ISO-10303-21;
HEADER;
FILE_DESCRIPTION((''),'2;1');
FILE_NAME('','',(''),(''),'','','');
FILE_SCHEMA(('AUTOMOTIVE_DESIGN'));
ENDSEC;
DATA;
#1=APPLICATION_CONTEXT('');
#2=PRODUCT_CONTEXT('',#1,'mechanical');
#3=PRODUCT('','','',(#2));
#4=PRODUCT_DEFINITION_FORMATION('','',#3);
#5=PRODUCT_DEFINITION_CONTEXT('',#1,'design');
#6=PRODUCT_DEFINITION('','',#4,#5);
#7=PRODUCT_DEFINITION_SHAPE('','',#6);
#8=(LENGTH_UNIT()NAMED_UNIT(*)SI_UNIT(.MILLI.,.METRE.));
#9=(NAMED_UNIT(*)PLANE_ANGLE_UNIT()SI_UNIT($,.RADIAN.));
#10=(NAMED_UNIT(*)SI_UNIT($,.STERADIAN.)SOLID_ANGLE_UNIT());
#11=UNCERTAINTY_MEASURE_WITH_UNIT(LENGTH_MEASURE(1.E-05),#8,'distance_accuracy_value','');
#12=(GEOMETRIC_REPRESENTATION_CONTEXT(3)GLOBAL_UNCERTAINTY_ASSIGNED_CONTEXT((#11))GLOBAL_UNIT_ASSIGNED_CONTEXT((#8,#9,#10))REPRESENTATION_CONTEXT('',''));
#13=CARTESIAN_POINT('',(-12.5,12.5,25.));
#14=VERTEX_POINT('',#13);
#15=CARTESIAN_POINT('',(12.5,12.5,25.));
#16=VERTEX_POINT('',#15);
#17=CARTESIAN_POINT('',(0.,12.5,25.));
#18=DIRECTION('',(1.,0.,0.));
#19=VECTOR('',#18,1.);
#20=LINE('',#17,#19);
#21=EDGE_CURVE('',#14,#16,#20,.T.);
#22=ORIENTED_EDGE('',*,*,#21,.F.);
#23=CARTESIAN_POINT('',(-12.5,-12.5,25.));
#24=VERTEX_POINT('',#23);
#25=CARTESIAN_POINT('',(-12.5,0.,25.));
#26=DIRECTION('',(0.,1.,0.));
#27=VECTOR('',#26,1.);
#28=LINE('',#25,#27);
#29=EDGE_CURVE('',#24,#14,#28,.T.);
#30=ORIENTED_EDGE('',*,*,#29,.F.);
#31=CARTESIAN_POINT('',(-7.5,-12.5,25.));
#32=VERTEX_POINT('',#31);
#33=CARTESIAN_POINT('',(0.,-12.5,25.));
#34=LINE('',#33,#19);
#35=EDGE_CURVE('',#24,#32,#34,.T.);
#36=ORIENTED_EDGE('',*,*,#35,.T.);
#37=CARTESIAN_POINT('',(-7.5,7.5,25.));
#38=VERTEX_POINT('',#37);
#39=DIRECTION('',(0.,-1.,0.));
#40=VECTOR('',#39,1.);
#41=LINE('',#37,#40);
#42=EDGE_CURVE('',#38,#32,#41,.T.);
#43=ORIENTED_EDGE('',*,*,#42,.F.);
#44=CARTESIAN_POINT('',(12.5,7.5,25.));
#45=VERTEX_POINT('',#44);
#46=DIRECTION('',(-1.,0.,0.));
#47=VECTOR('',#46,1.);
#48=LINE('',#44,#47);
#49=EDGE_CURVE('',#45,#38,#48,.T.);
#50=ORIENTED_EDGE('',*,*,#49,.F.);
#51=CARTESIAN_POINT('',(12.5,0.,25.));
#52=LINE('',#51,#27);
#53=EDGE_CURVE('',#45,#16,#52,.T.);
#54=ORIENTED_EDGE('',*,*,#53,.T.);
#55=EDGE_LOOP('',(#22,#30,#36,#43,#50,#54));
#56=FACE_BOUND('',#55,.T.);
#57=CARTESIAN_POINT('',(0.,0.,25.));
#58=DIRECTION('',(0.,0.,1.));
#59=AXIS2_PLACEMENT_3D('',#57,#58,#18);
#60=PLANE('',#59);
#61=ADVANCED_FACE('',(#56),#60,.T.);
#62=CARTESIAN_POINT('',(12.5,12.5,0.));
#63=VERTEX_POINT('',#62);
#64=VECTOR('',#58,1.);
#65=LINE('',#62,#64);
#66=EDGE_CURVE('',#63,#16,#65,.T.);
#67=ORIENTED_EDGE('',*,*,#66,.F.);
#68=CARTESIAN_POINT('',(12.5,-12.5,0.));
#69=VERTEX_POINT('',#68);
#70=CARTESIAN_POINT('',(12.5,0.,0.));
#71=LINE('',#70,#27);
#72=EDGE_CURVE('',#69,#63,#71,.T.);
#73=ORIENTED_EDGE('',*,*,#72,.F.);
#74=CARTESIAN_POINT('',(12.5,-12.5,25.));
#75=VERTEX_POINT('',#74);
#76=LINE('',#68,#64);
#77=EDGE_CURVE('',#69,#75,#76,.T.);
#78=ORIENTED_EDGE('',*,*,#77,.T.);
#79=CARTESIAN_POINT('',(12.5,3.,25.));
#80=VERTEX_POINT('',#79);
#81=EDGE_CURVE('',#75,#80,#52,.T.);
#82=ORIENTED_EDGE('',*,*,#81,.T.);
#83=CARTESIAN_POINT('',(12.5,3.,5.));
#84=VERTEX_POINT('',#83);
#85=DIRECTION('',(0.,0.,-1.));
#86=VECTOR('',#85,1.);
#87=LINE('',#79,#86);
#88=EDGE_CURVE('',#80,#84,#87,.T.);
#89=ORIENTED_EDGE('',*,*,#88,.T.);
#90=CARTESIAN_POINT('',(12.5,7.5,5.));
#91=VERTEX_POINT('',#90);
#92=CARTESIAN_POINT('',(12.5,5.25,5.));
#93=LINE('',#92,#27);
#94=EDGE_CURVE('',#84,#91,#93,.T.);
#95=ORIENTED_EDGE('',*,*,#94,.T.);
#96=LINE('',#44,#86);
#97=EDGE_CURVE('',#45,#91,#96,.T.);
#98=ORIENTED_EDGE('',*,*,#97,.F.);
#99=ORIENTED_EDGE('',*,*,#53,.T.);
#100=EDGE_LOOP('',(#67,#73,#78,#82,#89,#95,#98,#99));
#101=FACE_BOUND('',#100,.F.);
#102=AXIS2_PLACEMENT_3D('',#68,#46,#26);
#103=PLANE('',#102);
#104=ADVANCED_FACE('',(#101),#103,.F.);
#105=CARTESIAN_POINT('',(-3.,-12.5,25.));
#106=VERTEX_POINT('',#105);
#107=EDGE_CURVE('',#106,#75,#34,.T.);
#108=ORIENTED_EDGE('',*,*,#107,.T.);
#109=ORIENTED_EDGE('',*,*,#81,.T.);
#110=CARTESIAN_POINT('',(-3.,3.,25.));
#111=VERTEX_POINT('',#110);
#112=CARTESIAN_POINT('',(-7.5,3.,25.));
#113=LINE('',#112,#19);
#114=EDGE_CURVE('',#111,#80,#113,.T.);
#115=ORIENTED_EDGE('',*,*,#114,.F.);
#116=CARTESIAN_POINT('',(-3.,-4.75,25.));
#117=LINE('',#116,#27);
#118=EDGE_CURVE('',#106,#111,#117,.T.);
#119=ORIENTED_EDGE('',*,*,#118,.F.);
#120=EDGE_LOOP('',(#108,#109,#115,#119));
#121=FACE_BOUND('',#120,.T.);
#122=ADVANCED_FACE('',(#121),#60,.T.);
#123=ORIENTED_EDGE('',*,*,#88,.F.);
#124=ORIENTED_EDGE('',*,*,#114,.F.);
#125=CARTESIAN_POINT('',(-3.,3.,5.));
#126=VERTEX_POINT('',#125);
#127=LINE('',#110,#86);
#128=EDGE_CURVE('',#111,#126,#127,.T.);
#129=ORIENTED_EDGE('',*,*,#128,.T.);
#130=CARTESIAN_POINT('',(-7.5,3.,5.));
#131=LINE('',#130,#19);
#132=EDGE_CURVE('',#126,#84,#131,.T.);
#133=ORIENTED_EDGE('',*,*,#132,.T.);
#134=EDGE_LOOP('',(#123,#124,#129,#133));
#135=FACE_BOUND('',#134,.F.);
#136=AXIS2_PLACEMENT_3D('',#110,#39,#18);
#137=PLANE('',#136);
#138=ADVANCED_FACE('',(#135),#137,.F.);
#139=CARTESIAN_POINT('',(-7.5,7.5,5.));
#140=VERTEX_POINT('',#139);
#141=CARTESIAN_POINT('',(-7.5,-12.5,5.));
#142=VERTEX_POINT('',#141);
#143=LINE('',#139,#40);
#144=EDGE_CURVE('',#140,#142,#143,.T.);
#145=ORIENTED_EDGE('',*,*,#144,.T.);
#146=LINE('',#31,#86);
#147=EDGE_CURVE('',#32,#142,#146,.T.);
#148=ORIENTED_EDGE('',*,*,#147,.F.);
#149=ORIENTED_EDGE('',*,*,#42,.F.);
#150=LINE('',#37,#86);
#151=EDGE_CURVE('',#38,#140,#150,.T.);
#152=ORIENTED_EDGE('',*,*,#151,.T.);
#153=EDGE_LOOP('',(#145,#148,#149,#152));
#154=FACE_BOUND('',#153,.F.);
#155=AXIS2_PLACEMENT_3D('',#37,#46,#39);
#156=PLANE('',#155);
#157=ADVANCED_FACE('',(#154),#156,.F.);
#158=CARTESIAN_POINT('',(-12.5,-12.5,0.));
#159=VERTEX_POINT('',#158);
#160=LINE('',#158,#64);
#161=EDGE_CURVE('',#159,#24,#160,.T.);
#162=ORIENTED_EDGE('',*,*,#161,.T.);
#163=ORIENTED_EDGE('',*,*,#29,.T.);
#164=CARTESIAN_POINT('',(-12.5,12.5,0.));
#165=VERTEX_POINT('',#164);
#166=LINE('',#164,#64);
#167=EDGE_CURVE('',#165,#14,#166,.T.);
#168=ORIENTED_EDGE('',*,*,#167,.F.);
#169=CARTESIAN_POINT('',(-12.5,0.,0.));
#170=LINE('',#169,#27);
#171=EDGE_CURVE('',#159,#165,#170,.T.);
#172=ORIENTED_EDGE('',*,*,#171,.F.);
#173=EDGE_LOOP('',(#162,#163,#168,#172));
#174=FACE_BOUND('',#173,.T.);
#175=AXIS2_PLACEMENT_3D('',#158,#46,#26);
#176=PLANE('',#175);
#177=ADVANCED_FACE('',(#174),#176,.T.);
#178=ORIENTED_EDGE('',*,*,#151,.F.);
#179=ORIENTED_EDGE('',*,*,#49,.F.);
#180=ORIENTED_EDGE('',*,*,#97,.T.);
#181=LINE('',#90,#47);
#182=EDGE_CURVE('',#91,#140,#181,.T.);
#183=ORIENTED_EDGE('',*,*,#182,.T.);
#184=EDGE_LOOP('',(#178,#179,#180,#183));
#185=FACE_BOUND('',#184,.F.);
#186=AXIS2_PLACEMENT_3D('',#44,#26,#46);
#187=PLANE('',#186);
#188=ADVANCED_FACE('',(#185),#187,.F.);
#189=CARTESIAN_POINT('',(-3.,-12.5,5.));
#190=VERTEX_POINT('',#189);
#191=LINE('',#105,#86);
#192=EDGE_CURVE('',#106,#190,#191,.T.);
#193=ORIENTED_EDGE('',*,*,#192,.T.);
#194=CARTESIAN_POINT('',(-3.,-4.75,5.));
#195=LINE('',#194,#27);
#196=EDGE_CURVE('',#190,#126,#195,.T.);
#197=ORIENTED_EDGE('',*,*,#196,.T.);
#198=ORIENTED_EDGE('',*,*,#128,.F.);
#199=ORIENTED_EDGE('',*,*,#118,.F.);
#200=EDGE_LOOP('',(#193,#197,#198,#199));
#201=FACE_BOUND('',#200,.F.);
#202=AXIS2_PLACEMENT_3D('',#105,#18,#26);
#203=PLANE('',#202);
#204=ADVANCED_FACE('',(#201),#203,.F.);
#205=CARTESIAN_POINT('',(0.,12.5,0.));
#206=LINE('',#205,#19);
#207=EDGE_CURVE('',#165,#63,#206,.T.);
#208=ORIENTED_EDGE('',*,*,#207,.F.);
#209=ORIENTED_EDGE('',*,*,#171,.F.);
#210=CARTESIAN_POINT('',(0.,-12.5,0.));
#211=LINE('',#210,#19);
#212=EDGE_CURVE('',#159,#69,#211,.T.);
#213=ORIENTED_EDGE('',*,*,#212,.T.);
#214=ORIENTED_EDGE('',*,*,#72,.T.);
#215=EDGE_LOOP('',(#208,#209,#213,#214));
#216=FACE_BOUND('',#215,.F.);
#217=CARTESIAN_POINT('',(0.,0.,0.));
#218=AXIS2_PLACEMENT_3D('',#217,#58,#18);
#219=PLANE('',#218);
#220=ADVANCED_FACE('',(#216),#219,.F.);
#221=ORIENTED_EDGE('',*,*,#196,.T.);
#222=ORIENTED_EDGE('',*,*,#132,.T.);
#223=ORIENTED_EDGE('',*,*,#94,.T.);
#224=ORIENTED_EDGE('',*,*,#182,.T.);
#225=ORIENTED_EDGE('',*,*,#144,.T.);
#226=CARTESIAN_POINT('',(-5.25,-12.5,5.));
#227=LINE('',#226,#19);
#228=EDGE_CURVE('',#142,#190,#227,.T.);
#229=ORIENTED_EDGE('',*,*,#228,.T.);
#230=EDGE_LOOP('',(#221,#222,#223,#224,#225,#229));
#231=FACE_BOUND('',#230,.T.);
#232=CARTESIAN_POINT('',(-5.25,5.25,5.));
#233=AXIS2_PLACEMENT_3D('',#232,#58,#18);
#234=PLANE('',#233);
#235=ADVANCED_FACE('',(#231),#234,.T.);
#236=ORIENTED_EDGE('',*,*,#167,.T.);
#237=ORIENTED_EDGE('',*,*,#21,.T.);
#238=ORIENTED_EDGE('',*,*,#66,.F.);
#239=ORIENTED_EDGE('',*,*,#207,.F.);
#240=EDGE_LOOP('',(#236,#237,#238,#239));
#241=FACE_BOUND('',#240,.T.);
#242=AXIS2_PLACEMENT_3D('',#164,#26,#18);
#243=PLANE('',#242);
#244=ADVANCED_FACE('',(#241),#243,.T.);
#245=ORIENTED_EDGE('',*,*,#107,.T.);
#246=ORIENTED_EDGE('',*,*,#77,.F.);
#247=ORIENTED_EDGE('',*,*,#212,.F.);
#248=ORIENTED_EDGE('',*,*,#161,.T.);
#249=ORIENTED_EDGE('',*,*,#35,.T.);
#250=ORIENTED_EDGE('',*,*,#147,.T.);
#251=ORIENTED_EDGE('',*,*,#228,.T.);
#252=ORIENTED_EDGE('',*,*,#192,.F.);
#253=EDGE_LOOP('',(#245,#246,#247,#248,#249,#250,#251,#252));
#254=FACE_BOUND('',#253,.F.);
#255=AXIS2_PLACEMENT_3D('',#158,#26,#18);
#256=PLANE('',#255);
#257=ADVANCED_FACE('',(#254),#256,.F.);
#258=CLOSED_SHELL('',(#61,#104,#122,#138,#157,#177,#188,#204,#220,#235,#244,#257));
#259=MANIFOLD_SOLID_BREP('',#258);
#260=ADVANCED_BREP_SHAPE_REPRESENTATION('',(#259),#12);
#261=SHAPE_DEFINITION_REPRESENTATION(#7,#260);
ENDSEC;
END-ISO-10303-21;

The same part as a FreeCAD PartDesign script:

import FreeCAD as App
import Part
import Sketcher
Q = App.Units.Quantity

doc = App.newDocument("Part")
body = doc.addObject("PartDesign::Body", "Body")

# Sketch on XY plane
sketch1 = doc.addObject("Sketcher::SketchObject", "Sketch")
body.addObject(sketch1)
sketch1.AttachmentSupport = (doc.XY_Plane, [""])
sketch1.MapMode = "FlatFace"
sketch1.addGeometry([
    Part.LineSegment(App.Vector(-12, 12, 0), App.Vector(-12, -12, 0)),
    Part.LineSegment(App.Vector(-12, -12, 0), App.Vector(12, -12, 0)),
    Part.LineSegment(App.Vector(12, -12, 0), App.Vector(12, 12, 0)),
    Part.LineSegment(App.Vector(12, 12, 0), App.Vector(-12, 12, 0)),
], False)
sketch1.addConstraint([
    Sketcher.Constraint("Coincident", 0, 2, 1, 1),
    Sketcher.Constraint("Coincident", 1, 2, 2, 1),
    Sketcher.Constraint("Coincident", 2, 2, 3, 1),
    Sketcher.Constraint("Coincident", 3, 2, 0, 1),
    Sketcher.Constraint("Vertical", 0),
    Sketcher.Constraint("Horizontal", 1),
    Sketcher.Constraint("Vertical", 2),
    Sketcher.Constraint("Horizontal", 3),
    Sketcher.Constraint("Symmetric", 0, 2, 2, 2, -1, 1),
    Sketcher.Constraint("Equal", 3, 0),
    Sketcher.Constraint("DistanceX", 1, 1, 1, 2, Q("25 mm")),
])
pad1 = doc.addObject("PartDesign::Pad", "Pad")
body.addObject(pad1)
pad1.Profile = sketch1
pad1.Length = 25

# Sketch on XY plane
sketch2 = doc.addObject("Sketcher::SketchObject", "Sketch001")
body.addObject(sketch2)
sketch2.AttachmentSupport = (doc.XY_Plane, [""])
sketch2.MapMode = "FlatFace"
sketch2.AttachmentOffset = App.Placement(App.Vector(0, 0, 25), App.Rotation())
sketch2.addGeometry([
    Part.LineSegment(App.Vector(-7.5, 7.5, 0), App.Vector(-7.5, -12.5, 0)),  # 0
    Part.LineSegment(App.Vector(-7.5, -12.5, 0), App.Vector(-3, -12.5, 0)),  # 1
    Part.LineSegment(App.Vector(-3, -12.5, 0), App.Vector(-3, 3, 0)),  # 2
    Part.LineSegment(App.Vector(-3, 3, 0), App.Vector(12.5, 3, 0)),  # 3
    Part.LineSegment(App.Vector(12.5, 3, 0), App.Vector(12.5, 7.5, 0)),  # 4
    Part.LineSegment(App.Vector(12.5, 7.5, 0), App.Vector(-7.5, 7.5, 0)),  # 5
], False)
sketch2.addConstraint([
    Sketcher.Constraint("Coincident", 0, 2, 1, 1),
    Sketcher.Constraint("Coincident", 1, 2, 2, 1),
    Sketcher.Constraint("Coincident", 2, 2, 3, 1),
    Sketcher.Constraint("Coincident", 3, 2, 4, 1),
    Sketcher.Constraint("Coincident", 4, 2, 5, 1),
    Sketcher.Constraint("Coincident", 5, 2, 0, 1),
    Sketcher.Constraint("Vertical", 0),
    Sketcher.Constraint("Horizontal", 1),
    Sketcher.Constraint("Vertical", 2),
    Sketcher.Constraint("Horizontal", 3),
    Sketcher.Constraint("Vertical", 4),
    Sketcher.Constraint("Horizontal", 5),
    Sketcher.Constraint("Equal", 5, 0),
    Sketcher.Constraint("Equal", 3, 2),
    Sketcher.Constraint("DistanceX", 5, 2, 5, 1, Q("20 mm")),
    Sketcher.Constraint("DistanceX", 1, 1, 1, 2, Q("4.5 mm")),
    Sketcher.Constraint("DistanceX", 1, 2, -1, 1, Q("3 mm")),
    Sketcher.Constraint("DistanceY", -1, 1, 2, 2, Q("3 mm")),
])
pocket1 = doc.addObject("PartDesign::Pocket", "Pocket")
body.addObject(pocket1)
pocket1.Profile = sketch2
pocket1.Length = 20

doc.recompute()
